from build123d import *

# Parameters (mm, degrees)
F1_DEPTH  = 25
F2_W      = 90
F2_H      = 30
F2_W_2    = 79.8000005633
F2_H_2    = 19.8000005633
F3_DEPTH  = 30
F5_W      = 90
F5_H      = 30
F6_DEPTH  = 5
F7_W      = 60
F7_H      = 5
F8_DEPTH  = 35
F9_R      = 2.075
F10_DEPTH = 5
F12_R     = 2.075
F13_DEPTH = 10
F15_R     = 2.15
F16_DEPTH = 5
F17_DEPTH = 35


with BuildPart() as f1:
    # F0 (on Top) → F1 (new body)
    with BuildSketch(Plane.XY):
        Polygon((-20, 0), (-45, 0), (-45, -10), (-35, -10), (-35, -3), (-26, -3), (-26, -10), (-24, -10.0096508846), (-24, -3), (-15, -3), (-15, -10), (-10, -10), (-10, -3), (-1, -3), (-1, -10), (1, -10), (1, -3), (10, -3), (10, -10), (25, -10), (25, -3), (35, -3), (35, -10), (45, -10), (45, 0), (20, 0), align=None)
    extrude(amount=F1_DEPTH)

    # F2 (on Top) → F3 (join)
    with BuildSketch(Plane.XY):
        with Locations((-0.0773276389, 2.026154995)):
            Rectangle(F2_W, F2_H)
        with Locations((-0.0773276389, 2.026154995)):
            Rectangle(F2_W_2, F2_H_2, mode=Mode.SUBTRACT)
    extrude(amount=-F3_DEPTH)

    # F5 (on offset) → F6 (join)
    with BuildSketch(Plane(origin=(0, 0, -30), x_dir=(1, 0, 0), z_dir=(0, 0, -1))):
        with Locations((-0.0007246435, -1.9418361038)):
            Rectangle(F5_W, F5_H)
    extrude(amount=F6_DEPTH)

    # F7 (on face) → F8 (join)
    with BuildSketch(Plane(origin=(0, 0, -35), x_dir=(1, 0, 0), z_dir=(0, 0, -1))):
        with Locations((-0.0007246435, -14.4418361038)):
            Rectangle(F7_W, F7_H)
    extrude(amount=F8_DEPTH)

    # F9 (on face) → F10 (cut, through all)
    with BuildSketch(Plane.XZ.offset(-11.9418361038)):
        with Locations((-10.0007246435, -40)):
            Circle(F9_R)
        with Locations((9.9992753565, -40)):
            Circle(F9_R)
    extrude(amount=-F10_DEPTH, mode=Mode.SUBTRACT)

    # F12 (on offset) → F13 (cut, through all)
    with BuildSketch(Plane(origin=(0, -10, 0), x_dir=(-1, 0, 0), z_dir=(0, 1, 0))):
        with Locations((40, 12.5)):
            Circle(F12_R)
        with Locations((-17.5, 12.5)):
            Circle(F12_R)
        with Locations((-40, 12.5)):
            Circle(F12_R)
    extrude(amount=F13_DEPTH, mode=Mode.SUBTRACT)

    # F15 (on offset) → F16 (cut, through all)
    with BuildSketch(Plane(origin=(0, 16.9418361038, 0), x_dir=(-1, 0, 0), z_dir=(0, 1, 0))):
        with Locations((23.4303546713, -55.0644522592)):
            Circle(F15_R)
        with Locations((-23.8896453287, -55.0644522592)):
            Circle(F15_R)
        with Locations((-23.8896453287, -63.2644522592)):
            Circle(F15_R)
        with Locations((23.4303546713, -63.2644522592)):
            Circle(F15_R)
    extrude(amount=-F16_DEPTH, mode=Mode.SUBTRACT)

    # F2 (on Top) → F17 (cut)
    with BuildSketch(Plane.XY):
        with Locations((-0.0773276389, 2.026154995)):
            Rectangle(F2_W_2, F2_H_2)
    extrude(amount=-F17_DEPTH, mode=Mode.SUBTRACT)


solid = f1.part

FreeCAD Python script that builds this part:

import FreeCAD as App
import Part
import Sketcher
Q = App.Units.Quantity


def add_polygon(sketch, points):
    """Adds a closed chain of lines whose ends are joined by coincident constraints."""
    first, n = sketch.GeometryCount, len(points)
    for a, b in zip(points, points[1:] + points[:1]):
        sketch.addGeometry(Part.LineSegment(App.Vector(*a, 0), App.Vector(*b, 0)), False)
    for i in range(n):
        sketch.addConstraint(Sketcher.Constraint("Coincident", first + i, 2, first + (i + 1) % n, 1))

doc = App.newDocument("Part")
body = doc.addObject("PartDesign::Body", "Body")

# Sketch on XY plane
sketch1 = body.newObject("Sketcher::SketchObject", "Sketch")
sketch1.AttachmentSupport = (doc.getObject("XY_Plane"), [""])
sketch1.MapMode = "FlatFace"
add_polygon(sketch1, [(-45, 0), (-45, -10), (-35, -10), (-35, -3), (-26, -3), (-26, -10), (-24, -10.009651), (-24, -3), (-15, -3), (-15, -10), (-10, -10), (-10, -3), (-1, -3), (-1, -10), (1, -10), (1, -3), (10, -3), (10, -10), (25, -10), (25, -3), (35, -3), (35, -10), (45, -10), (45, 0)])  # lines 0-23
sketch1.addConstraint(Sketcher.Constraint("Vertical", 0))
sketch1.addConstraint(Sketcher.Constraint("Horizontal", 1))
sketch1.addConstraint(Sketcher.Constraint("Vertical", 2))
sketch1.addConstraint(Sketcher.Constraint("Horizontal", 3))
sketch1.addConstraint(Sketcher.Constraint("Vertical", 4))
sketch1.addConstraint(Sketcher.Constraint("Vertical", 6))
sketch1.addConstraint(Sketcher.Constraint("Horizontal", 7))
sketch1.addConstraint(Sketcher.Constraint("Vertical", 8))
sketch1.addConstraint(Sketcher.Constraint("Horizontal", 9))
sketch1.addConstraint(Sketcher.Constraint("Vertical", 10))
sketch1.addConstraint(Sketcher.Constraint("Horizontal", 11))
sketch1.addConstraint(Sketcher.Constraint("Vertical", 12))
sketch1.addConstraint(Sketcher.Constraint("Horizontal", 13))
sketch1.addConstraint(Sketcher.Constraint("Vertical", 14))
sketch1.addConstraint(Sketcher.Constraint("Horizontal", 15))
sketch1.addConstraint(Sketcher.Constraint("Vertical", 16))
sketch1.addConstraint(Sketcher.Constraint("Horizontal", 17))
sketch1.addConstraint(Sketcher.Constraint("Vertical", 18))
sketch1.addConstraint(Sketcher.Constraint("Horizontal", 19))
sketch1.addConstraint(Sketcher.Constraint("Vertical", 20))
sketch1.addConstraint(Sketcher.Constraint("Horizontal", 21))
sketch1.addConstraint(Sketcher.Constraint("Vertical", 22))
sketch1.addConstraint(Sketcher.Constraint("Horizontal", 23))
sketch1.addConstraint(Sketcher.Constraint("Symmetric", 22, 2, 23, 2, -1, 1))
sketch1.addConstraint(Sketcher.Constraint("Symmetric", 11, 2, 14, 2, -2))
sketch1.addConstraint(Sketcher.Constraint("Symmetric", 9, 2, 16, 2, -2))
sketch1.addConstraint(Sketcher.Constraint("Symmetric", 2, 2, 19, 2, -2))
sketch1.addConstraint(Sketcher.Constraint("Horizontal", 1, 2, 4, 2))
sketch1.addConstraint(Sketcher.Constraint("Horizontal", 3, 2, 6, 2))
sketch1.addConstraint(Sketcher.Constraint("Horizontal", 4, 2, 8, 2))
sketch1.addConstraint(Sketcher.Constraint("Horizontal", 7, 2, 10, 2))
sketch1.addConstraint(Sketcher.Constraint("Horizontal", 9, 2, 12, 2))
sketch1.addConstraint(Sketcher.Constraint("Horizontal", 17, 2, 20, 2))
sketch1.addConstraint(Sketcher.Constraint("Equal", 3, 7))
sketch1.addConstraint(Sketcher.Constraint("Equal", 7, 11))
sketch1.addConstraint(Sketcher.Constraint("Equal", 1, 19))
sketch1.addConstraint(Sketcher.Constraint("Equal", 21, 0))
sketch1.addConstraint(Sketcher.Constraint("DistanceX", 1, 1, 1, 2, Q("10 mm")))
sketch1.addConstraint(Sketcher.Constraint("DistanceX", 3, 1, 3, 2, Q("9 mm")))
sketch1.addConstraint(Sketcher.Constraint("DistanceX", 9, 1, 9, 2, Q("5 mm")))
sketch1.addConstraint(Sketcher.Constraint("DistanceX", 13, 1, 13, 2, Q("2 mm")))
sketch1.addConstraint(Sketcher.Constraint("DistanceX", 17, 1, 17, 2, Q("15 mm")))
sketch1.addConstraint(Sketcher.Constraint("DistanceY", 2, 1, 2, 2, Q("7 mm")))
sketch1.addConstraint(Sketcher.Constraint("DistanceY", 6, 1, 6, 2, Q("7.009651 mm")))
pad1 = body.newObject("PartDesign::Pad", "Pad")
pad1.Profile = sketch1
pad1.Length = 25

# Sketch on XY plane
sketch2 = body.newObject("Sketcher::SketchObject", "Sketch001")
sketch2.AttachmentSupport = (doc.getObject("XY_Plane"), [""])
sketch2.MapMode = "FlatFace"
add_polygon(sketch2, [(-45.077328, 17.026155), (-45.077328, -12.973845), (44.922672, -12.973845), (44.922672, 17.026155)])  # lines 0-3
add_polygon(sketch2, [(39.822673, -7.873845), (-39.977328, -7.873845), (-39.977328, 11.926155), (39.822673, 11.926155)])  # lines 4-7
sketch2.addConstraint(Sketcher.Constraint("Vertical", 0))
sketch2.addConstraint(Sketcher.Constraint("Horizontal", 1))
sketch2.addConstraint(Sketcher.Constraint("Vertical", 2))
sketch2.addConstraint(Sketcher.Constraint("Horizontal", 3))
sketch2.addConstraint(Sketcher.Constraint("Horizontal", 4))
sketch2.addConstraint(Sketcher.Constraint("Vertical", 5))
sketch2.addConstraint(Sketcher.Constraint("Horizontal", 6))
sketch2.addConstraint(Sketcher.Constraint("Vertical", 7))
sketch2.addConstraint(Sketcher.Constraint("DistanceX", 1, 1, 1, 2, Q("90 mm")))
sketch2.addConstraint(Sketcher.Constraint("DistanceY", 0, 2, 0, 1, Q("30 mm")))
sketch2.addConstraint(Sketcher.Constraint("DistanceX", 4, 2, 4, 1, Q("79.800001 mm")))
sketch2.addConstraint(Sketcher.Constraint("DistanceY", 5, 1, 5, 2, Q("19.800001 mm")))
sketch2.addConstraint(Sketcher.Constraint("DistanceX", 0, 2, 4, 2, Q("5.1 mm")))
sketch2.addConstraint(Sketcher.Constraint("DistanceY", 0, 2, 4, 2, Q("5.1 mm")))
sketch2.addConstraint(Sketcher.Constraint("DistanceX", 0, 2, -1, 1, Q("45.077328 mm")))
sketch2.addConstraint(Sketcher.Constraint("DistanceY", 0, 2, -1, 1, Q("12.973845 mm")))
pad2 = body.newObject("PartDesign::Pad", "Pad001")
pad2.Profile = sketch2
pad2.Length = 30
pad2.Reversed = True

# Sketch on XY plane
sketch3 = body.newObject("Sketcher::SketchObject", "Sketch002")
sketch3.AttachmentSupport = (doc.getObject("XY_Plane"), [""])
sketch3.MapMode = "FlatFace"
sketch3.AttachmentOffset = App.Placement(App.Vector(0, 0, -30), App.Rotation())
add_polygon(sketch3, [(-45.000725, -13.058164), (-45.000725, 16.941836), (44.999275, 16.941836), (44.999275, -13.058164)])  # lines 0-3
sketch3.addConstraint(Sketcher.Constraint("Vertical", 0))
sketch3.addConstraint(Sketcher.Constraint("Horizontal", 1))
sketch3.addConstraint(Sketcher.Constraint("Vertical", 2))
sketch3.addConstraint(Sketcher.Constraint("Horizontal", 3))
sketch3.addConstraint(Sketcher.Constraint("DistanceX", 1, 1, 1, 2, Q("90 mm")))
sketch3.addConstraint(Sketcher.Constraint("DistanceY", 0, 1, 0, 2, Q("30 mm")))
sketch3.addConstraint(Sketcher.Constraint("DistanceX", 0, 2, -1, 1, Q("45.000725 mm")))
sketch3.addConstraint(Sketcher.Constraint("DistanceY", -1, 1, 0, 2, Q("16.941836 mm")))
pad3 = body.newObject("PartDesign::Pad", "Pad002")
pad3.Profile = sketch3
pad3.Length = 5
pad3.Reversed = True

# Sketch on XY plane
sketch4 = body.newObject("Sketcher::SketchObject", "Sketch003")
sketch4.AttachmentSupport = (doc.getObject("XY_Plane"), [""])
sketch4.MapMode = "FlatFace"
sketch4.AttachmentOffset = App.Placement(App.Vector(0, 0, -35), App.Rotation())
add_polygon(sketch4, [(-30.000725, 11.941836), (-30.000725, 16.941836), (29.999275, 16.941836), (29.999275, 11.941836)])  # lines 0-3
sketch4.addConstraint(Sketcher.Constraint("Vertical", 0))
sketch4.addConstraint(Sketcher.Constraint("Horizontal", 1))
sketch4.addConstraint(Sketcher.Constraint("Vertical", 2))
sketch4.addConstraint(Sketcher.Constraint("Horizontal", 3))
sketch4.addConstraint(Sketcher.Constraint("DistanceX", 1, 1, 1, 2, Q("60 mm")))
sketch4.addConstraint(Sketcher.Constraint("DistanceY", 0, 1, 0, 2, Q("5 mm")))
sketch4.addConstraint(Sketcher.Constraint("DistanceX", 0, 2, -1, 1, Q("30.000725 mm")))
sketch4.addConstraint(Sketcher.Constraint("DistanceY", -1, 1, 0, 2, Q("16.941836 mm")))
pad4 = body.newObject("PartDesign::Pad", "Pad003")
pad4.Profile = sketch4
pad4.Length = 35
pad4.Reversed = True

# Sketch on XZ plane
sketch5 = body.newObject("Sketcher::SketchObject", "Sketch004")
sketch5.AttachmentSupport = (doc.getObject("XZ_Plane"), [""])
sketch5.MapMode = "FlatFace"
sketch5.AttachmentOffset = App.Placement(App.Vector(0, 0, -11.941836), App.Rotation())
sketch5.addGeometry(Part.Circle(App.Vector(-10.000725, -40, 0), App.Vector(0, 0, 1), 2.075), False)
sketch5.addGeometry(Part.Circle(App.Vector(9.999275, -40, 0), App.Vector(0, 0, 1), 2.075), False)
sketch5.addConstraint(Sketcher.Constraint("Equal", 0, 1))
sketch5.addConstraint(Sketcher.Constraint("Horizontal", 0, 3, 1, 3))
sketch5.addConstraint(Sketcher.Constraint("Diameter", 0, Q("4.15 mm")))
sketch5.addConstraint(Sketcher.Constraint("DistanceY", 0, 3, -1, 1, Q("40 mm")))
sketch5.addConstraint(Sketcher.Constraint("DistanceX", 0, 3, 1, 3, Q("20 mm")))
sketch5.addConstraint(Sketcher.Constraint("DistanceX", 0, 3, -1, 1, Q("10.000725 mm")))
pocket1 = body.newObject("PartDesign::Pocket", "Pocket")
pocket1.Profile = sketch5
pocket1.Type = "ThroughAll"

# Sketch on XZ plane
sketch6 = body.newObject("Sketcher::SketchObject", "Sketch005")
sketch6.AttachmentSupport = (doc.getObject("XZ_Plane"), [""])
sketch6.MapMode = "FlatFace"
sketch6.AttachmentOffset = App.Placement(App.Vector(0, 0, 10), App.Rotation())
sketch6.addGeometry(Part.Circle(App.Vector(-40, 12.5, 0), App.Vector(0, 0, 1), 2.075), False)
sketch6.addGeometry(Part.Circle(App.Vector(17.5, 12.5, 0), App.Vector(0, 0, 1), 2.075), False)
sketch6.addGeometry(Part.Circle(App.Vector(40, 12.5, 0), App.Vector(0, 0, 1), 2.075), False)
sketch6.addConstraint(Sketcher.Constraint("Equal", 0, 1))
sketch6.addConstraint(Sketcher.Constraint("Equal", 1, 2))
sketch6.addConstraint(Sketcher.Constraint("Symmetric", 0, 3, 2, 3, -2))
sketch6.addConstraint(Sketcher.Constraint("Horizontal", 0, 3, 1, 3))
sketch6.addConstraint(Sketcher.Constraint("Diameter", 0, Q("4.15 mm")))
sketch6.addConstraint(Sketcher.Constraint("DistanceX", 0, 3, -1, 1, Q("40 mm")))
sketch6.addConstraint(Sketcher.Constraint("DistanceY", -1, 1, 0, 3, Q("12.5 mm")))
sketch6.addConstraint(Sketcher.Constraint("DistanceX", -1, 1, 1, 3, Q("17.5 mm")))
pocket2 = body.newObject("PartDesign::Pocket", "Pocket001")
pocket2.Profile = sketch6
pocket2.Type = "ThroughAll"

# Sketch on XZ plane
sketch7 = body.newObject("Sketcher::SketchObject", "Sketch006")
sketch7.AttachmentSupport = (doc.getObject("XZ_Plane"), [""])
sketch7.MapMode = "FlatFace"
sketch7.AttachmentOffset = App.Placement(App.Vector(0, 0, -16.941836), App.Rotation())
sketch7.addGeometry(Part.Circle(App.Vector(-23.430355, -55.064452, 0), App.Vector(0, 0, 1), 2.15), False)
sketch7.addGeometry(Part.Circle(App.Vector(23.889645, -55.064452, 0), App.Vector(0, 0, 1), 2.15), False)
sketch7.addGeometry(Part.Circle(App.Vector(23.889645, -63.264452, 0), App.Vector(0, 0, 1), 2.15), False)
sketch7.addGeometry(Part.Circle(App.Vector(-23.430355, -63.264452, 0), App.Vector(0, 0, 1), 2.15), False)
sketch7.addConstraint(Sketcher.Constraint("Equal", 0, 1))
sketch7.addConstraint(Sketcher.Constraint("Equal", 1, 2))
sketch7.addConstraint(Sketcher.Constraint("Equal", 2, 3))
sketch7.addConstraint(Sketcher.Constraint("Horizontal", 0, 3, 1, 3))
sketch7.addConstraint(Sketcher.Constraint("Horizontal", 2, 3, 3, 3))
sketch7.addConstraint(Sketcher.Constraint("Vertical", 1, 3, 2, 3))
sketch7.addConstraint(Sketcher.Constraint("Vertical", 0, 3, 3, 3))
sketch7.addConstraint(Sketcher.Constraint("Diameter", 0, Q("4.3 mm")))
sketch7.addConstraint(Sketcher.Constraint("DistanceY", 2, 3, 1, 3, Q("8.2 mm")))
sketch7.addConstraint(Sketcher.Constraint("DistanceX", 0, 3, 1, 3, Q("47.32 mm")))
sketch7.addConstraint(Sketcher.Constraint("DistanceX", 0, 3, -1, 1, Q("23.430355 mm")))
sketch7.addConstraint(Sketcher.Constraint("DistanceY", 0, 3, -1, 1, Q("55.064452 mm")))
pocket3 = body.newObject("PartDesign::Pocket", "Pocket002")
pocket3.Profile = sketch7
pocket3.Type = "ThroughAll"
pocket3.Reversed = True

# Sketch on XY plane
sketch8 = body.newObject("Sketcher::SketchObject", "Sketch007")
sketch8.AttachmentSupport = (doc.getObject("XY_Plane"), [""])
sketch8.MapMode = "FlatFace"
add_polygon(sketch8, [(-39.977328, 11.926155), (-39.977328, -7.873845), (39.822673, -7.873845), (39.822673, 11.926155)])  # lines 0-3
sketch8.addConstraint(Sketcher.Constraint("Vertical", 0))
sketch8.addConstraint(Sketcher.Constraint("Horizontal", 1))
sketch8.addConstraint(Sketcher.Constraint("Vertical", 2))
sketch8.addConstraint(Sketcher.Constraint("Horizontal", 3))
sketch8.addConstraint(Sketcher.Constraint("DistanceX", 1, 1, 1, 2, Q("79.800001 mm")))
sketch8.addConstraint(Sketcher.Constraint("DistanceY", 0, 2, 0, 1, Q("19.800001 mm")))
sketch8.addConstraint(Sketcher.Constraint("DistanceX", 0, 2, -1, 1, Q("39.977328 mm")))
sketch8.addConstraint(Sketcher.Constraint("DistanceY", 0, 2, -1, 1, Q("7.873845 mm")))
pocket4 = body.newObject("PartDesign::Pocket", "Pocket003")
pocket4.Profile = sketch8
pocket4.Length = 35

doc.recompute()
